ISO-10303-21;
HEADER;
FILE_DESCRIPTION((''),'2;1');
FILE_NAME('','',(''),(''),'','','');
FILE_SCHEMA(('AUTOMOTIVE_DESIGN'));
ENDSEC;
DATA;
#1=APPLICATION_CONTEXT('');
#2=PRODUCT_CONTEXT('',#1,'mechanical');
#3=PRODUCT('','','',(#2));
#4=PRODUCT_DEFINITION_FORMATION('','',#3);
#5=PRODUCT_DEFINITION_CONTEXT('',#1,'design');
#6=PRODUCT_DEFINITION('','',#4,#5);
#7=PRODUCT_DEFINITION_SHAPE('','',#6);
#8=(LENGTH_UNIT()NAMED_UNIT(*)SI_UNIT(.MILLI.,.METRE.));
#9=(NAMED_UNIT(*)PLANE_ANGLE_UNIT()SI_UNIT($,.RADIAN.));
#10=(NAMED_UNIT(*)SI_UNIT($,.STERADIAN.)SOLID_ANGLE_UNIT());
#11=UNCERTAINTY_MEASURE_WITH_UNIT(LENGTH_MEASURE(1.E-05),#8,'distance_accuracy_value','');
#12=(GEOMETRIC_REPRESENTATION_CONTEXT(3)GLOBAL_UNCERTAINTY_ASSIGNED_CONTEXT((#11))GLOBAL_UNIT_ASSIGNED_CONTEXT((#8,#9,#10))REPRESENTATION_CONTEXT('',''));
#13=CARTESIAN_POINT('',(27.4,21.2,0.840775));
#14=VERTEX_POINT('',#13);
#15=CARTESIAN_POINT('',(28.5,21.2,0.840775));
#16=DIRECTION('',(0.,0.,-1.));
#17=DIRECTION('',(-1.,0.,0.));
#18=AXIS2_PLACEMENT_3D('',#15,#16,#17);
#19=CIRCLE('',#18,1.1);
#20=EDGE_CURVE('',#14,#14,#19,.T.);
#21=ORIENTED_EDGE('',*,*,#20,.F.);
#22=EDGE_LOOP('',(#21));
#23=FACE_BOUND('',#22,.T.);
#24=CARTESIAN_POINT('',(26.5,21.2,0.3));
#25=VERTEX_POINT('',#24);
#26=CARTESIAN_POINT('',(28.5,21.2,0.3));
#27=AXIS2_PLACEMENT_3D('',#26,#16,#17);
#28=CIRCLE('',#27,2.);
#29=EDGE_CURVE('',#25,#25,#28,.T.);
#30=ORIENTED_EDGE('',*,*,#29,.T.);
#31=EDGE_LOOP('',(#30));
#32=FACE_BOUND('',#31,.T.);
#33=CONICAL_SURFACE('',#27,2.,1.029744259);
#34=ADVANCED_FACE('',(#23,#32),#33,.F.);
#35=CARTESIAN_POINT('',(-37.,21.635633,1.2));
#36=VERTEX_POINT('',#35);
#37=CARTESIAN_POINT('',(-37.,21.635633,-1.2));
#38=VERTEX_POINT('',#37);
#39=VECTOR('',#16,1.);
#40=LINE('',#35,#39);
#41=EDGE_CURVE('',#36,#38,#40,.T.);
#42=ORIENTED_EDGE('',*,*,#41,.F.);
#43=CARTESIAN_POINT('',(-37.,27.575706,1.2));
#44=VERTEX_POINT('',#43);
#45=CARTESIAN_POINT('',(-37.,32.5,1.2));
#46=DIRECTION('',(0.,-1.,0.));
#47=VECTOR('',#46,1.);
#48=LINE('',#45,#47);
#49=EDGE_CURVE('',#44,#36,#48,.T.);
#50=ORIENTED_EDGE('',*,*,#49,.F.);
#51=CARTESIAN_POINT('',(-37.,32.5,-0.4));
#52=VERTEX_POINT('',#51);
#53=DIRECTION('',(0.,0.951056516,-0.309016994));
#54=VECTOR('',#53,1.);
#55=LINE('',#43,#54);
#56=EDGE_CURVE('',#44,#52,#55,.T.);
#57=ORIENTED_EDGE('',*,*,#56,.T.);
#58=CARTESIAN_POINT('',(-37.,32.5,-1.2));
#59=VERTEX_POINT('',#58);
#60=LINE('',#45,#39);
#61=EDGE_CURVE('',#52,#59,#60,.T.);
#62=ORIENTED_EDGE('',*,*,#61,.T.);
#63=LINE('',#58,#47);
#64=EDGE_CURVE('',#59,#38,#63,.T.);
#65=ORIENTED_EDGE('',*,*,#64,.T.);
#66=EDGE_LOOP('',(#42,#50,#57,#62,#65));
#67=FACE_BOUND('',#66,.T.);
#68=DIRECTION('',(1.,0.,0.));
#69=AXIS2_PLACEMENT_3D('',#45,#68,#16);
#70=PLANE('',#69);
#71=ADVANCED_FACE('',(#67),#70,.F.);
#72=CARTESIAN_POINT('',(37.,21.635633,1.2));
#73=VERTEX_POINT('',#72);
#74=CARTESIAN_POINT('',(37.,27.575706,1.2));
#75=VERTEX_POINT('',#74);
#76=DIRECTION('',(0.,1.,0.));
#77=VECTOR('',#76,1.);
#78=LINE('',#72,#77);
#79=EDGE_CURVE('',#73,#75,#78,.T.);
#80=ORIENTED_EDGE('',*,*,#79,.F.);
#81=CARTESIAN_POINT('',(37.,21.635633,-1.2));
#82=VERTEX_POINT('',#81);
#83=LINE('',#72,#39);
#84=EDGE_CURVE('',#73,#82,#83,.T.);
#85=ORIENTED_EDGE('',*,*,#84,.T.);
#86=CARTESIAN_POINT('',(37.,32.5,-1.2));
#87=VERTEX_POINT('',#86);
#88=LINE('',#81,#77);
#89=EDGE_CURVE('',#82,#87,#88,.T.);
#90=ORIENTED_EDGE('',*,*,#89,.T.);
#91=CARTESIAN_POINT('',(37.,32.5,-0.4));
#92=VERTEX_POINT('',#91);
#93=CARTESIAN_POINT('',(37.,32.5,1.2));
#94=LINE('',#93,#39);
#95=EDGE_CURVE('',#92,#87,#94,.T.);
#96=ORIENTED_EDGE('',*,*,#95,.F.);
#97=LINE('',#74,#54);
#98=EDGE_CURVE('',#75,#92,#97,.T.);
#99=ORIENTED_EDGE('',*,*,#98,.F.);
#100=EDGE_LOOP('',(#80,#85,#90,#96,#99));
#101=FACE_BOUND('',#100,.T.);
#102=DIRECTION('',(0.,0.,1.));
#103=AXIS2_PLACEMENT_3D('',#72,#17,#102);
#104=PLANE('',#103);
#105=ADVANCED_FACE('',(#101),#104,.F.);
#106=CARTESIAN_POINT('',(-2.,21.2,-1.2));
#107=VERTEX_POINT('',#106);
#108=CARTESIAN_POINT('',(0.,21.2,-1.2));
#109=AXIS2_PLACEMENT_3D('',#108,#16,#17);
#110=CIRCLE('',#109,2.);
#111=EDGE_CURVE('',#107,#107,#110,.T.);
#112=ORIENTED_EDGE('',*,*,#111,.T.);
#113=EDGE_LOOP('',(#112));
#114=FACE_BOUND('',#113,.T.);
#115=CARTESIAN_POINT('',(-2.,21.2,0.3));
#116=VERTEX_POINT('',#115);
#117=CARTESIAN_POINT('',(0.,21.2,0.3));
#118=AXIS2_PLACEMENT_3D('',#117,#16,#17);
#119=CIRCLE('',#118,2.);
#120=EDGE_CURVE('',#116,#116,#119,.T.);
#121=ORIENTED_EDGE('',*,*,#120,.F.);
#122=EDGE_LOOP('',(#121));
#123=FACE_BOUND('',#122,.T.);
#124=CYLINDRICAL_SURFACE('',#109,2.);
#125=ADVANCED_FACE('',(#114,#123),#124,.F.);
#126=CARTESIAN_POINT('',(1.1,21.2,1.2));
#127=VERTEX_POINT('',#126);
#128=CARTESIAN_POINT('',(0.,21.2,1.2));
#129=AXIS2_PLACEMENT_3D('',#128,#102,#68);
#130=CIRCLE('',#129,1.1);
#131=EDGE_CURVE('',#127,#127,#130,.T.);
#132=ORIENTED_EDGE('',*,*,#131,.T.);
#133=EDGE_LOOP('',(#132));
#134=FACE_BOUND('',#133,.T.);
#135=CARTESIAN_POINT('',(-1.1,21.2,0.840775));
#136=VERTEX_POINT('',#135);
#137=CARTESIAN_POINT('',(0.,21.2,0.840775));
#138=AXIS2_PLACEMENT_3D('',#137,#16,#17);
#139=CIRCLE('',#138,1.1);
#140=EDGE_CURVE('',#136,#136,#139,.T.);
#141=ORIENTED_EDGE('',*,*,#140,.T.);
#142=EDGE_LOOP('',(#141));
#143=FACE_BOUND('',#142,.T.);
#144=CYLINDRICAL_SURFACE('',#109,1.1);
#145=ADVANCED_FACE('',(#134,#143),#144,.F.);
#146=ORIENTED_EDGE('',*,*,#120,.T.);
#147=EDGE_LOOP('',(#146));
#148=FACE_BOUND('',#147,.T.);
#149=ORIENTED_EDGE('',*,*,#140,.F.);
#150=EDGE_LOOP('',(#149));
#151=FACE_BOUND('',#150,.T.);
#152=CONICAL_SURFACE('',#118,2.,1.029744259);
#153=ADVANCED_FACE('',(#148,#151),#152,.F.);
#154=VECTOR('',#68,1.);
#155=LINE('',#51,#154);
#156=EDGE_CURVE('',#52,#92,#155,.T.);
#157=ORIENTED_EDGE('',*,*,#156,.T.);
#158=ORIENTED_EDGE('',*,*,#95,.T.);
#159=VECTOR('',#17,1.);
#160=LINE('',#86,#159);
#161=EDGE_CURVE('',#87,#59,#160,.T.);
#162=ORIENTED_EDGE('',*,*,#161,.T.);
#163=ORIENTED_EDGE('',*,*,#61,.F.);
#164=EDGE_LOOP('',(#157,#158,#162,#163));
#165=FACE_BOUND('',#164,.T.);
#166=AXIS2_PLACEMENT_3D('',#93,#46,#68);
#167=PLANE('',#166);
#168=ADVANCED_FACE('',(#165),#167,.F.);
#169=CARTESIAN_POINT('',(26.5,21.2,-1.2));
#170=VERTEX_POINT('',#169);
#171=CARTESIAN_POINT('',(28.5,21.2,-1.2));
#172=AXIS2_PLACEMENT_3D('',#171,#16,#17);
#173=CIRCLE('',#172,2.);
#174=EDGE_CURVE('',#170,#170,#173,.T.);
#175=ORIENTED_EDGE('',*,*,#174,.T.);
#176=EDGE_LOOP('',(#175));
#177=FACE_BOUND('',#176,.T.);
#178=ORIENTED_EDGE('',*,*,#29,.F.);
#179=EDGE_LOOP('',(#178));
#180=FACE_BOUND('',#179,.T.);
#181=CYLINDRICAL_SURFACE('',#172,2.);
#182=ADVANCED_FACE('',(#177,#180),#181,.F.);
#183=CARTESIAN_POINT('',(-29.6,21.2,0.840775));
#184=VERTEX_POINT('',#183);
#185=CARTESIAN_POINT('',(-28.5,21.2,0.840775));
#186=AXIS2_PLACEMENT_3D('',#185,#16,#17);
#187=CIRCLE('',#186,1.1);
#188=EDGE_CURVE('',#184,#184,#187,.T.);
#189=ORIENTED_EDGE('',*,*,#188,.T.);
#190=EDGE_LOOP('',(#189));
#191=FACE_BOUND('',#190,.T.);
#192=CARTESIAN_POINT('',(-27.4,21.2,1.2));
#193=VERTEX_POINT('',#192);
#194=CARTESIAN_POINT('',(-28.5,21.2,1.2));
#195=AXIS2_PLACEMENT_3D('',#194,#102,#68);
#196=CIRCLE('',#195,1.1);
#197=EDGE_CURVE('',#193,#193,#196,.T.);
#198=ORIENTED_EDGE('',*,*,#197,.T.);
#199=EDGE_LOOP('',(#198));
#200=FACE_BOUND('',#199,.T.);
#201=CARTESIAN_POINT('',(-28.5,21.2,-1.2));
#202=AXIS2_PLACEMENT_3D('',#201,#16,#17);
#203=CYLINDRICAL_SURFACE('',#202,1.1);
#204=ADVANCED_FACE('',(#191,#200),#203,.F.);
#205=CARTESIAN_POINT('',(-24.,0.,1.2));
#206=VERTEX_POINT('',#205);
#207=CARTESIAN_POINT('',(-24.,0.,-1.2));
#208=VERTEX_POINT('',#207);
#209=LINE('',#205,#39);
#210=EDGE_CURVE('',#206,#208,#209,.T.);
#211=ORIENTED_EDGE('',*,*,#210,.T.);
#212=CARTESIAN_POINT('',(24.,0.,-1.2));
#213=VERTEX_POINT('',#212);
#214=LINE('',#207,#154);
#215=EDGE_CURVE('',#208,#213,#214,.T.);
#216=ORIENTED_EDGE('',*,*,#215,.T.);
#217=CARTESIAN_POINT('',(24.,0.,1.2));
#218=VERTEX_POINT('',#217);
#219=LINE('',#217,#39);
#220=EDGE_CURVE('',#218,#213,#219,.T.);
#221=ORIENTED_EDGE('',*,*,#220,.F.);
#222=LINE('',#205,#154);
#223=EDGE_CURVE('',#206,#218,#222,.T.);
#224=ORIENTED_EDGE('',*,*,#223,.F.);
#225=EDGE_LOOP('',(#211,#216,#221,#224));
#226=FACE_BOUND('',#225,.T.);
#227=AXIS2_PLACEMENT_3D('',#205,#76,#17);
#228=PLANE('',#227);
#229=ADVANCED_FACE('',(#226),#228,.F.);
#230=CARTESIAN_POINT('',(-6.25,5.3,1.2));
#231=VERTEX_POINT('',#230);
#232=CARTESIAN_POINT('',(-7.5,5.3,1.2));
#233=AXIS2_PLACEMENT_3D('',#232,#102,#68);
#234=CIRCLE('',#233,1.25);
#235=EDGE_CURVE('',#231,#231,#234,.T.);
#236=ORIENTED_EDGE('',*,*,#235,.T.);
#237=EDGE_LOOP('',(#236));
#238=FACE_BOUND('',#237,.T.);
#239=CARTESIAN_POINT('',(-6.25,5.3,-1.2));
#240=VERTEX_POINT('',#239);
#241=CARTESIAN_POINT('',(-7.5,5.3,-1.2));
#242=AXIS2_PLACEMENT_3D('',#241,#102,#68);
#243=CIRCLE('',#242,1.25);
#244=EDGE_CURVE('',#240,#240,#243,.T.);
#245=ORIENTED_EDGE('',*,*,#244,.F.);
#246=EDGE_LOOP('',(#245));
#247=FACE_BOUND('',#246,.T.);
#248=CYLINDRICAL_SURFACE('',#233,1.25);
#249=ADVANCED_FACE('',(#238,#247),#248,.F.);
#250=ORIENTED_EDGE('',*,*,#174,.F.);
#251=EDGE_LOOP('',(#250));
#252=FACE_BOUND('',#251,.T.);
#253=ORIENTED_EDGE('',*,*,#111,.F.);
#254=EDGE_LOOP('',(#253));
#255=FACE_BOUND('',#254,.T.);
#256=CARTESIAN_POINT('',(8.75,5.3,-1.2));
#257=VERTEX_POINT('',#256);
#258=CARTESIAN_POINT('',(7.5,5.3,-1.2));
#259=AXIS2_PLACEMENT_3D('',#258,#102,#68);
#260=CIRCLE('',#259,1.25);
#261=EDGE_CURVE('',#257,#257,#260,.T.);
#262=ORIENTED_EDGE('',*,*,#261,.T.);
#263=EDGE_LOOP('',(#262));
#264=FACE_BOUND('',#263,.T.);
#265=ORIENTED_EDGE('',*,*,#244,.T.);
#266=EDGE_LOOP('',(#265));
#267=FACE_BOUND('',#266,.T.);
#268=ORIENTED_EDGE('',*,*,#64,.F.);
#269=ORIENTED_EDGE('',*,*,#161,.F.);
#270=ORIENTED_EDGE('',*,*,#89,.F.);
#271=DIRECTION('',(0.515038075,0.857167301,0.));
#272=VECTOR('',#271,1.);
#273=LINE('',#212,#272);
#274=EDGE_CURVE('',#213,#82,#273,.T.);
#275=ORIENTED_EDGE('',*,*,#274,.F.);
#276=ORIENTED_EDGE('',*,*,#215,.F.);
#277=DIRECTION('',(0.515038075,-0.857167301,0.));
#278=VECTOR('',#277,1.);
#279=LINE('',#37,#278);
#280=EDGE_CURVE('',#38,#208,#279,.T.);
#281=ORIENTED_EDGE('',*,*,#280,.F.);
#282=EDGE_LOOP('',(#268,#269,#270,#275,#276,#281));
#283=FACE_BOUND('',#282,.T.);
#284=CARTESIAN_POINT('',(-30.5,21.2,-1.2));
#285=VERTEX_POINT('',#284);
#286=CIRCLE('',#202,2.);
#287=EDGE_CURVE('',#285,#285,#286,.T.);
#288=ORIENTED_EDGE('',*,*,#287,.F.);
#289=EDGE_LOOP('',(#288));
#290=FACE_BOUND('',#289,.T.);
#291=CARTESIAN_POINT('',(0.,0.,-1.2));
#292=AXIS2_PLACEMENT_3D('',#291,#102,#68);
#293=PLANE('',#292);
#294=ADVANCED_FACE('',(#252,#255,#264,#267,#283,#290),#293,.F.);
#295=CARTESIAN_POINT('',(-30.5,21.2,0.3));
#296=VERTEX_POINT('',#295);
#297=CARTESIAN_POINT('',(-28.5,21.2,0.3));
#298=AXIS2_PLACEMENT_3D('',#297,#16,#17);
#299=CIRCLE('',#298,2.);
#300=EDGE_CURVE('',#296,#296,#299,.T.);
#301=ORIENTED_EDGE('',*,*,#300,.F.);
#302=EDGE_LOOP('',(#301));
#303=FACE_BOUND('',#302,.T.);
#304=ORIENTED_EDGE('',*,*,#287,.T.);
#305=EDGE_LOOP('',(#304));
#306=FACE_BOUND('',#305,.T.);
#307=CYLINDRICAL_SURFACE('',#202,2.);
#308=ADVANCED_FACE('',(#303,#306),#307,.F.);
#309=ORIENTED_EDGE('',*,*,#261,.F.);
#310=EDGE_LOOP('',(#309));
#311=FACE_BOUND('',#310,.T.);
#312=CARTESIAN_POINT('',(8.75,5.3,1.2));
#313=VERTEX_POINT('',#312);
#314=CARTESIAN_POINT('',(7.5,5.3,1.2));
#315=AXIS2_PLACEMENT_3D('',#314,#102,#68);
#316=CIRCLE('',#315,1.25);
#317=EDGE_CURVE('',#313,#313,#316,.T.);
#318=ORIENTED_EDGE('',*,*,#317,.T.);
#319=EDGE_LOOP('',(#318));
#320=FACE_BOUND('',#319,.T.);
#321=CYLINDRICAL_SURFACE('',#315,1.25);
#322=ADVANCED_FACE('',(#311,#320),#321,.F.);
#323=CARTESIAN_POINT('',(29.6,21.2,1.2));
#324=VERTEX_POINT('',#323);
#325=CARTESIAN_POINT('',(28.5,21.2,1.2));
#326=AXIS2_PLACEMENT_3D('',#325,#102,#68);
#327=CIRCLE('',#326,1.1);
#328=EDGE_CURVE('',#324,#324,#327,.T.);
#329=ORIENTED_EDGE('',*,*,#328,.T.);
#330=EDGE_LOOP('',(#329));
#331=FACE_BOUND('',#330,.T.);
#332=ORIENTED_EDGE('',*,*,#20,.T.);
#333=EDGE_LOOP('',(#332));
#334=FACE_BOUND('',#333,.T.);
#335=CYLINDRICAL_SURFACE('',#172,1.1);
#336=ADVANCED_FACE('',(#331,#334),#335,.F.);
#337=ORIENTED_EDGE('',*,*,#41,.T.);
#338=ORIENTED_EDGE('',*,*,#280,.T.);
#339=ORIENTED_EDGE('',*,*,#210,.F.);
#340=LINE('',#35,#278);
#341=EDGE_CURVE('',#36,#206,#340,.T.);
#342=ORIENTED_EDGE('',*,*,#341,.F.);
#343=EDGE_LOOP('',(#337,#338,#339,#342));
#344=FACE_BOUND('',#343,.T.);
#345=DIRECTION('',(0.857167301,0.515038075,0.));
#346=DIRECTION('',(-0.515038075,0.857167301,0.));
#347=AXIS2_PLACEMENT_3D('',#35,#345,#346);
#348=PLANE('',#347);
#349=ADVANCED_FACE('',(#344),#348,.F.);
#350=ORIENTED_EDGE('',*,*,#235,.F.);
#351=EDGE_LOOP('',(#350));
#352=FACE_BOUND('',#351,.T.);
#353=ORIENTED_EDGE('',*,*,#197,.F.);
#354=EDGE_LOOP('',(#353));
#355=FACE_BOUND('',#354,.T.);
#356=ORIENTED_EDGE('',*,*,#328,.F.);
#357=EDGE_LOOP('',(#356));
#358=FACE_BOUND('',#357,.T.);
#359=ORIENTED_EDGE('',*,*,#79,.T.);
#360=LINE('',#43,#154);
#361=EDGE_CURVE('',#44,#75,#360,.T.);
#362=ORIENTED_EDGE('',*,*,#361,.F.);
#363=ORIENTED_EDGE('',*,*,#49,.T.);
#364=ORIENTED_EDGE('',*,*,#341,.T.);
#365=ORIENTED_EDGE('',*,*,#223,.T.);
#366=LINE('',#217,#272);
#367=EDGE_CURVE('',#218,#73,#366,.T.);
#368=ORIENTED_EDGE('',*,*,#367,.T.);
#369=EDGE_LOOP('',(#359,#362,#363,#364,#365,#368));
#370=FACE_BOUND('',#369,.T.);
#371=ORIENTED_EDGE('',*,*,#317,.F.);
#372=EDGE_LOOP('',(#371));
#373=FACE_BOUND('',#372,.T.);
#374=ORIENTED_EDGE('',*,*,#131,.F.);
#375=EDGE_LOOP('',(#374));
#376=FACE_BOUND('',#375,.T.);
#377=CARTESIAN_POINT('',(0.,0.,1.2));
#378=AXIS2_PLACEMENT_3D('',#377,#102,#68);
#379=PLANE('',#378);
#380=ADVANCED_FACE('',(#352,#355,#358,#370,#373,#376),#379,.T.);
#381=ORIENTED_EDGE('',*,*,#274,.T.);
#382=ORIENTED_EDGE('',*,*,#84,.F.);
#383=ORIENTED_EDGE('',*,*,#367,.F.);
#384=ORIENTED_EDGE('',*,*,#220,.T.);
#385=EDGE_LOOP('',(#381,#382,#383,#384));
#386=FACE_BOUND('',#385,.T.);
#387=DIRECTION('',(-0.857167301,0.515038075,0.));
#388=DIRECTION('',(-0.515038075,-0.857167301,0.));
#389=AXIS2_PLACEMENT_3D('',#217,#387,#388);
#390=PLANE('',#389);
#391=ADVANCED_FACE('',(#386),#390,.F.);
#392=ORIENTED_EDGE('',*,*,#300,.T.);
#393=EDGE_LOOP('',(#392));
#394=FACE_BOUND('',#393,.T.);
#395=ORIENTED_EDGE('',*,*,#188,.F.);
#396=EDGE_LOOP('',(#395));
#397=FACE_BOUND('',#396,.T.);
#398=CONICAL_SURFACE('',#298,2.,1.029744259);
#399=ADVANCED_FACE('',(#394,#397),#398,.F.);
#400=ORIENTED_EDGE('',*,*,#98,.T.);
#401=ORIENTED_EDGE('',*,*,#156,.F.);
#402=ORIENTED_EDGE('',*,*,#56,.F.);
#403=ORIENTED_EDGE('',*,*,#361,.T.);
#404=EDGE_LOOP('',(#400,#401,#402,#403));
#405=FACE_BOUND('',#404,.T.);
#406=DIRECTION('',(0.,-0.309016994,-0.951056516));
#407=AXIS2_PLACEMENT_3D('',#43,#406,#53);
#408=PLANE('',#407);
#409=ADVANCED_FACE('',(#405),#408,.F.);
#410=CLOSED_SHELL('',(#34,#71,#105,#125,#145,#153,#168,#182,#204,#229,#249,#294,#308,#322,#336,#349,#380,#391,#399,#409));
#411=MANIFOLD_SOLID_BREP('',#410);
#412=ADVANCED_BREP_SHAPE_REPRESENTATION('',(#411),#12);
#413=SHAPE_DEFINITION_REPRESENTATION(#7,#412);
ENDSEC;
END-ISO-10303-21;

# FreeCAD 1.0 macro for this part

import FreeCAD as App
import Part
import Sketcher
Q = App.Units.Quantity


def add_polygon(sketch, points):
    """Adds a closed chain of lines whose ends are joined by coincident constraints."""
    first, n = sketch.GeometryCount, len(points)
    for a, b in zip(points, points[1:] + points[:1]):
        sketch.addGeometry(Part.LineSegment(App.Vector(*a, 0), App.Vector(*b, 0)), False)
    for i in range(n):
        sketch.addConstraint(Sketcher.Constraint("Coincident", first + i, 2, first + (i + 1) % n, 1))

doc = App.newDocument("Part")
body = doc.addObject("PartDesign::Body", "Body")

# Sketch on XY plane
sketch1 = body.newObject("Sketcher::SketchObject", "Sketch")
sketch1.AttachmentSupport = (doc.getObject("XY_Plane"), [""])
sketch1.MapMode = "FlatFace"
add_polygon(sketch1, [(-24, 0), (24, 0), (37, 22), (37, 32), (-37, 32), (-37, 22)])  # lines 0-5
sketch1.addConstraint(Sketcher.Constraint("Horizontal", 0))
sketch1.addConstraint(Sketcher.Constraint("Vertical", 2))
sketch1.addConstraint(Sketcher.Constraint("Horizontal", 3))
sketch1.addConstraint(Sketcher.Constraint("Vertical", 4))
sketch1.addConstraint(Sketcher.Constraint("Symmetric", 0, 2, 5, 2, -1, 1))
sketch1.addConstraint(Sketcher.Constraint("Symmetric", 1, 2, 4, 2, -2))
sketch1.addConstraint(Sketcher.Constraint("DistanceX", 0, 1, 0, 2, 48.0))
sketch1.addConstraint(Sketcher.Constraint("DistanceX", 3, 2, 3, 1, 74.0))
sketch1.addConstraint(Sketcher.Constraint("Angle", 1, Q("59 deg")))
sketch1.addConstraint(Sketcher.Constraint("DistanceY", -1, 1, 2, 2, 32.5))
pad1 = body.newObject("PartDesign::Pad", "Pad")
pad1.Profile = sketch1
pad1.Length = 2.4
pad1.Midplane = True

# Sketch on YZ plane
sketch2 = body.newObject("Sketcher::SketchObject", "Sketch001")
sketch2.AttachmentSupport = (doc.getObject("YZ_Plane"), [""])
sketch2.MapMode = "FlatFace"
sketch2.AttachmentOffset = App.Placement(App.Vector(0, 0, 37), App.Rotation())
add_polygon(sketch2, [(27.6, 1.2), (32.5, -0.4), (32.5, 1.2)])  # lines 0-2
sketch2.addConstraint(Sketcher.Constraint("Vertical", 1))
sketch2.addConstraint(Sketcher.Constraint("Horizontal", 2))
sketch2.addConstraint(Sketcher.Constraint("Angle", 0, Q("-18 deg")))
sketch2.addConstraint(Sketcher.Constraint("DistanceY", 1, 1, 1, 2, 1.6))
sketch2.addConstraint(Sketcher.Constraint("DistanceX", -1, 1, 0, 2, 32.5))
sketch2.addConstraint(Sketcher.Constraint("DistanceY", 0, 2, -1, 1, 0.4))
pocket1 = body.newObject("PartDesign::Pocket", "Pocket")
pocket1.Profile = sketch2
pocket1.Type = "ThroughAll"

# Sketch on XY plane
sketch3 = body.newObject("Sketcher::SketchObject", "Sketch002")
sketch3.AttachmentSupport = (doc.getObject("XY_Plane"), [""])
sketch3.MapMode = "FlatFace"
sketch3.AttachmentOffset = App.Placement(App.Vector(0, 0, 1.2), App.Rotation())
sketch3.addGeometry(Part.Circle(App.Vector(-7.5, 5.3, 0), App.Vector(0, 0, 1), 1.2), False)
sketch3.addGeometry(Part.Circle(App.Vector(7.5, 5.3, 0), App.Vector(0, 0, 1), 1.2), False)
sketch3.addConstraint(Sketcher.Constraint("Equal", 0, 1))
sketch3.addConstraint(Sketcher.Constraint("Symmetric", 0, 3, 1, 3, -2))
sketch3.addConstraint(Sketcher.Constraint("Diameter", 0, 2.5))
sketch3.addConstraint(Sketcher.Constraint("DistanceX", 0, 3, 1, 3, 15.0))
sketch3.addConstraint(Sketcher.Constraint("DistanceY", -1, 1, 0, 3, 5.3))
doc.recompute()
hole = body.newObject("PartDesign::Hole", "Hole")
hole.Profile = sketch3
hole.ThreadType = "None"
hole.Diameter = 2.5
hole.DepthType = "Dimension"
hole.Depth = 10
hole.DrillPoint = "Angled"
hole.DrillPointAngle = 118

# Sketch on YZ plane
sketch4 = body.newObject("Sketcher::SketchObject", "Sketch003")
sketch4.AttachmentSupport = (doc.getObject("YZ_Plane"), [""])
sketch4.MapMode = "FlatFace"
sketch4.AttachmentOffset = App.Placement(App.Vector(0, 0, 28.5), App.Rotation())
add_polygon(sketch4, [(21.2, 1.2), (21.2, -1.2), (23.2, -1.2), (23.2, 0.3), (22.3, 0.84), (22.3, 1.2)])  # lines 0-5
sketch4.addGeometry(Part.LineSegment(App.Vector(21.2, -1.2, 0), App.Vector(21.2, 1.2, 0)), True)  # axis
sketch4.addConstraint(Sketcher.Constraint("Vertical", 0))
sketch4.addConstraint(Sketcher.Constraint("Horizontal", 1))
sketch4.addConstraint(Sketcher.Constraint("Vertical", 2))
sketch4.addConstraint(Sketcher.Constraint("Vertical", 4))
sketch4.addConstraint(Sketcher.Constraint("Horizontal", 5))
sketch4.addConstraint(Sketcher.Constraint("Vertical", 6))
sketch4.addConstraint(Sketcher.Constraint("Coincident", 6, 1, 0, 2))
sketch4.addConstraint(Sketcher.Constraint("Horizontal", 4, 2, 6, 2))
sketch4.addConstraint(Sketcher.Constraint("DistanceX", 1, 1, 1, 2, 2.0))
sketch4.addConstraint(Sketcher.Constraint("Angle", 3, Q("149 deg")))
sketch4.addConstraint(Sketcher.Constraint("DistanceX", 5, 2, 5, 1, 1.1))
sketch4.addConstraint(Sketcher.Constraint("DistanceY", 0, 2, 0, 1, 2.4))
sketch4.addConstraint(Sketcher.Constraint("DistanceY", 2, 1, 2, 2, 1.5))
sketch4.addConstraint(Sketcher.Constraint("DistanceX", -1, 1, 0, 2, 21.2))
sketch4.addConstraint(Sketcher.Constraint("DistanceY", 0, 2, -1, 1, 1.2))
groove = body.newObject("PartDesign::Groove", "Groove")
groove.Profile = sketch4
groove.ReferenceAxis = (sketch4, ["Axis0"])
groove.Angle = 360
doc.recompute()

linearpattern = body.newObject("PartDesign::LinearPattern", "LinearPattern")
linearpattern.Originals = [groove]
linearpattern.Direction = (doc.getObject("X_Axis"), [""])
linearpattern.Mode = "offset"
linearpattern.Offset = 28.5
linearpattern.Occurrences = 2
linearpattern.Reversed = True
body.Tip = linearpattern
doc.recompute()

linearpattern2 = body.newObject("PartDesign::LinearPattern", "LinearPattern001")
linearpattern2.Originals = [groove]
linearpattern2.Direction = (doc.getObject("X_Axis"), [""])
linearpattern2.Mode = "offset"
linearpattern2.Offset = 57
linearpattern2.Occurrences = 2
linearpattern2.Reversed = True
body.Tip = linearpattern2

doc.recompute()
